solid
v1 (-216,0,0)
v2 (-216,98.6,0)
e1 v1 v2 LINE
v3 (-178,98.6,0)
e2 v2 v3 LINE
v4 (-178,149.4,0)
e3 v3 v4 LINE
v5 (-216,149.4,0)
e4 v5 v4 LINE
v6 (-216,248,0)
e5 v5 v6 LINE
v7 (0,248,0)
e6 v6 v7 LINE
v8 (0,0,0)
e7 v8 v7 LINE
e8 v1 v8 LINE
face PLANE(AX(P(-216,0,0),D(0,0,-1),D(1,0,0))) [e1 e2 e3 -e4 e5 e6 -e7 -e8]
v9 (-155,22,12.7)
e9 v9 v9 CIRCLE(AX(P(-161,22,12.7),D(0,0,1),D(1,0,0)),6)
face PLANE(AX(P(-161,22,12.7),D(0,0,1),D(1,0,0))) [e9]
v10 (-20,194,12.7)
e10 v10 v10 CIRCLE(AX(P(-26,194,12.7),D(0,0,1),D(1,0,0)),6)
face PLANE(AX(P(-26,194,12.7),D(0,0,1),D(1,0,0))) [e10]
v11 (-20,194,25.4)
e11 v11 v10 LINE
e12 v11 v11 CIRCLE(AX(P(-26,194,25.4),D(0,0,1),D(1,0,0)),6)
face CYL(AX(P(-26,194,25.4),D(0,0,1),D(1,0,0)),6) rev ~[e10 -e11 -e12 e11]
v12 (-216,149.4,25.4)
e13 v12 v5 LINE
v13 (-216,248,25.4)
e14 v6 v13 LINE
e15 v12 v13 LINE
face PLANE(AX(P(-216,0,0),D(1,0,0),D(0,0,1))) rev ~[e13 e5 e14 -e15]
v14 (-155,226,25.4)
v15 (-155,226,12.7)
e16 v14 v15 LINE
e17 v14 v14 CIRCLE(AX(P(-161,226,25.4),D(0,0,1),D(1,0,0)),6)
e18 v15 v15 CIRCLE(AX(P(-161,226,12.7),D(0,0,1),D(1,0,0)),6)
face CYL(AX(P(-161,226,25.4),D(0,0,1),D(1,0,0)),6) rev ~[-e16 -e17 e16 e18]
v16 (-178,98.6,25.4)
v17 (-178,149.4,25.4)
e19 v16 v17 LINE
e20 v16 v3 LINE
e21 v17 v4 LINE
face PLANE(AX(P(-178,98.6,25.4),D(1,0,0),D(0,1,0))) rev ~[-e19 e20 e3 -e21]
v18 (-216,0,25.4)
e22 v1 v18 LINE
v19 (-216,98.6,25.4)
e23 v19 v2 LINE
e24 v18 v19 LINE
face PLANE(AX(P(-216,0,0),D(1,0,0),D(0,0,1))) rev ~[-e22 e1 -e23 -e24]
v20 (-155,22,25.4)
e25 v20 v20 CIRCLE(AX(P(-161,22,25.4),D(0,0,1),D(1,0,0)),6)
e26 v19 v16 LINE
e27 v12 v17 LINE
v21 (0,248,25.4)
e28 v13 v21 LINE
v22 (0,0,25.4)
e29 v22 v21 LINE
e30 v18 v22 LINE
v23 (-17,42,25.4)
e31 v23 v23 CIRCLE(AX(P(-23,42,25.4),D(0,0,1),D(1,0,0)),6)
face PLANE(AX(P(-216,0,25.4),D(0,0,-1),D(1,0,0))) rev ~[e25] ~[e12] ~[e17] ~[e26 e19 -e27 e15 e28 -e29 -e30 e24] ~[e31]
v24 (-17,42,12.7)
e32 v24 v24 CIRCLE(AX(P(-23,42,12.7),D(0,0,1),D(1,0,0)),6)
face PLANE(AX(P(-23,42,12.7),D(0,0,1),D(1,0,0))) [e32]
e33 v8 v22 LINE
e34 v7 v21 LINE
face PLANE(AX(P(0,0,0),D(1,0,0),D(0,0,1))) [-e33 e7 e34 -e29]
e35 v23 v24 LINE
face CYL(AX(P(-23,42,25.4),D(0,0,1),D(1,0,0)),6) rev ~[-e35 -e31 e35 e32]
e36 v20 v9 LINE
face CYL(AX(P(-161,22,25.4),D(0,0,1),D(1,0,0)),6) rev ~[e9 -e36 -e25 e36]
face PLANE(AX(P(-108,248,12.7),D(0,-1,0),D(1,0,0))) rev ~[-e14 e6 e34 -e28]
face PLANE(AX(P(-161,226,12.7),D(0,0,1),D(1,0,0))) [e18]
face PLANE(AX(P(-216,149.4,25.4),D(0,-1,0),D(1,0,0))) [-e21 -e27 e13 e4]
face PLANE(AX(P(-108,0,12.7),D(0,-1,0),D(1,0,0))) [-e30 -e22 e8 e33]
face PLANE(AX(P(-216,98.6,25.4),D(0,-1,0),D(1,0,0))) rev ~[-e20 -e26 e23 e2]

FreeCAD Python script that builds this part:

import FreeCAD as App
import Part
import Sketcher


def add_polygon(sketch, points):
    """Adds a closed chain of lines whose ends are joined by coincident constraints."""
    first, n = sketch.GeometryCount, len(points)
    for a, b in zip(points, points[1:] + points[:1]):
        sketch.addGeometry(Part.LineSegment(App.Vector(*a, 0), App.Vector(*b, 0)), False)
    for i in range(n):
        sketch.addConstraint(Sketcher.Constraint("Coincident", first + i, 2, first + (i + 1) % n, 1))

doc = App.newDocument("Part")
body = doc.addObject("PartDesign::Body", "Body")

sketch1 = body.newObject("Sketcher::SketchObject", "Sketch")
sketch1.AttachmentSupport = (doc.getObject("XZ_Plane"), [""])
sketch1.MapMode = "FlatFace"
add_polygon(sketch1, [(-216, 25), (-216, 0), (0, 0), (0, 25)])
sketch1.addConstraint([
    Sketcher.Constraint("Vertical", 0),
    Sketcher.Constraint("Horizontal", 1),
    Sketcher.Constraint("Vertical", 2),
    Sketcher.Constraint("Horizontal", 3),
    Sketcher.Constraint("Coincident", 1, 2, -1, 1),
    Sketcher.Constraint("DistanceX", 1, 1, 1, 2, 216.0),
    Sketcher.Constraint("DistanceY", 0, 2, 0, 1, 25.4),
])
pad1 = body.newObject("PartDesign::Pad", "Pad")
pad1.Profile = sketch1
pad1.Length = 248
pad1.Reversed = True

sketch2 = body.newObject("Sketcher::SketchObject", "Sketch001")
sketch2.AttachmentSupport = (doc.getObject("XY_Plane"), [""])
sketch2.MapMode = "FlatFace"
sketch2.AttachmentOffset = App.Placement(App.Vector(0, 0, 25.4), App.Rotation())
sketch2.addGeometry([
    Part.Circle(App.Vector(-161, 226, 0), App.Vector(0, 0, 1), 6),
    Part.Circle(App.Vector(-161, 22, 0), App.Vector(0, 0, 1), 6),
    Part.Circle(App.Vector(-26, 194, 0), App.Vector(0, 0, 1), 6),
    Part.Circle(App.Vector(-23, 42, 0), App.Vector(0, 0, 1), 6),
], False)
sketch2.addConstraint([
    Sketcher.Constraint("Equal", 0, 1),
    Sketcher.Constraint("Equal", 1, 2),
    Sketcher.Constraint("Equal", 2, 3),
    Sketcher.Constraint("Vertical", 0, 3, 1, 3),
    Sketcher.Constraint("Diameter", 0, 12.0),
    Sketcher.Constraint("DistanceX", 0, 3, -1, 1, 161.0),
    Sketcher.Constraint("DistanceY", -1, 1, 0, 3, 226.0),
    Sketcher.Constraint("DistanceY", -1, 1, 1, 3, 22.0),
    Sketcher.Constraint("DistanceX", 2, 3, -1, 1, 26.0),
    Sketcher.Constraint("DistanceY", -1, 1, 2, 3, 194.0),
    Sketcher.Constraint("DistanceX", 3, 3, -1, 1, 23.0),
    Sketcher.Constraint("DistanceY", -1, 1, 3, 3, 42.0),
])
pocket1 = body.newObject("PartDesign::Pocket", "Pocket")
pocket1.Profile = sketch2
pocket1.Length = 12.7

sketch3 = body.newObject("Sketcher::SketchObject", "Sketch002")
sketch3.AttachmentSupport = (doc.getObject("XY_Plane"), [""])
sketch3.MapMode = "FlatFace"
sketch3.AttachmentOffset = App.Placement(App.Vector(0, 0, 25.4), App.Rotation())
add_polygon(sketch3, [(-216, 149), (-216, 99), (-178, 99), (-178, 149)])
sketch3.addConstraint([
    Sketcher.Constraint("Vertical", 0),
    Sketcher.Constraint("Horizontal", 1),
    Sketcher.Constraint("Vertical", 2),
    Sketcher.Constraint("Horizontal", 3),
    Sketcher.Constraint("DistanceX", 1, 1, 1, 2, 38.0),
    Sketcher.Constraint("DistanceY", 0, 2, 0, 1, 50.8),
    Sketcher.Constraint("DistanceX", 0, 2, -1, 1, 216.0),
    Sketcher.Constraint("DistanceY", -1, 1, 0, 2, 98.6),
])
pocket2 = body.newObject("PartDesign::Pocket", "Pocket001")
pocket2.Profile = sketch3
pocket2.Type = "ThroughAll"

doc.recompute()
